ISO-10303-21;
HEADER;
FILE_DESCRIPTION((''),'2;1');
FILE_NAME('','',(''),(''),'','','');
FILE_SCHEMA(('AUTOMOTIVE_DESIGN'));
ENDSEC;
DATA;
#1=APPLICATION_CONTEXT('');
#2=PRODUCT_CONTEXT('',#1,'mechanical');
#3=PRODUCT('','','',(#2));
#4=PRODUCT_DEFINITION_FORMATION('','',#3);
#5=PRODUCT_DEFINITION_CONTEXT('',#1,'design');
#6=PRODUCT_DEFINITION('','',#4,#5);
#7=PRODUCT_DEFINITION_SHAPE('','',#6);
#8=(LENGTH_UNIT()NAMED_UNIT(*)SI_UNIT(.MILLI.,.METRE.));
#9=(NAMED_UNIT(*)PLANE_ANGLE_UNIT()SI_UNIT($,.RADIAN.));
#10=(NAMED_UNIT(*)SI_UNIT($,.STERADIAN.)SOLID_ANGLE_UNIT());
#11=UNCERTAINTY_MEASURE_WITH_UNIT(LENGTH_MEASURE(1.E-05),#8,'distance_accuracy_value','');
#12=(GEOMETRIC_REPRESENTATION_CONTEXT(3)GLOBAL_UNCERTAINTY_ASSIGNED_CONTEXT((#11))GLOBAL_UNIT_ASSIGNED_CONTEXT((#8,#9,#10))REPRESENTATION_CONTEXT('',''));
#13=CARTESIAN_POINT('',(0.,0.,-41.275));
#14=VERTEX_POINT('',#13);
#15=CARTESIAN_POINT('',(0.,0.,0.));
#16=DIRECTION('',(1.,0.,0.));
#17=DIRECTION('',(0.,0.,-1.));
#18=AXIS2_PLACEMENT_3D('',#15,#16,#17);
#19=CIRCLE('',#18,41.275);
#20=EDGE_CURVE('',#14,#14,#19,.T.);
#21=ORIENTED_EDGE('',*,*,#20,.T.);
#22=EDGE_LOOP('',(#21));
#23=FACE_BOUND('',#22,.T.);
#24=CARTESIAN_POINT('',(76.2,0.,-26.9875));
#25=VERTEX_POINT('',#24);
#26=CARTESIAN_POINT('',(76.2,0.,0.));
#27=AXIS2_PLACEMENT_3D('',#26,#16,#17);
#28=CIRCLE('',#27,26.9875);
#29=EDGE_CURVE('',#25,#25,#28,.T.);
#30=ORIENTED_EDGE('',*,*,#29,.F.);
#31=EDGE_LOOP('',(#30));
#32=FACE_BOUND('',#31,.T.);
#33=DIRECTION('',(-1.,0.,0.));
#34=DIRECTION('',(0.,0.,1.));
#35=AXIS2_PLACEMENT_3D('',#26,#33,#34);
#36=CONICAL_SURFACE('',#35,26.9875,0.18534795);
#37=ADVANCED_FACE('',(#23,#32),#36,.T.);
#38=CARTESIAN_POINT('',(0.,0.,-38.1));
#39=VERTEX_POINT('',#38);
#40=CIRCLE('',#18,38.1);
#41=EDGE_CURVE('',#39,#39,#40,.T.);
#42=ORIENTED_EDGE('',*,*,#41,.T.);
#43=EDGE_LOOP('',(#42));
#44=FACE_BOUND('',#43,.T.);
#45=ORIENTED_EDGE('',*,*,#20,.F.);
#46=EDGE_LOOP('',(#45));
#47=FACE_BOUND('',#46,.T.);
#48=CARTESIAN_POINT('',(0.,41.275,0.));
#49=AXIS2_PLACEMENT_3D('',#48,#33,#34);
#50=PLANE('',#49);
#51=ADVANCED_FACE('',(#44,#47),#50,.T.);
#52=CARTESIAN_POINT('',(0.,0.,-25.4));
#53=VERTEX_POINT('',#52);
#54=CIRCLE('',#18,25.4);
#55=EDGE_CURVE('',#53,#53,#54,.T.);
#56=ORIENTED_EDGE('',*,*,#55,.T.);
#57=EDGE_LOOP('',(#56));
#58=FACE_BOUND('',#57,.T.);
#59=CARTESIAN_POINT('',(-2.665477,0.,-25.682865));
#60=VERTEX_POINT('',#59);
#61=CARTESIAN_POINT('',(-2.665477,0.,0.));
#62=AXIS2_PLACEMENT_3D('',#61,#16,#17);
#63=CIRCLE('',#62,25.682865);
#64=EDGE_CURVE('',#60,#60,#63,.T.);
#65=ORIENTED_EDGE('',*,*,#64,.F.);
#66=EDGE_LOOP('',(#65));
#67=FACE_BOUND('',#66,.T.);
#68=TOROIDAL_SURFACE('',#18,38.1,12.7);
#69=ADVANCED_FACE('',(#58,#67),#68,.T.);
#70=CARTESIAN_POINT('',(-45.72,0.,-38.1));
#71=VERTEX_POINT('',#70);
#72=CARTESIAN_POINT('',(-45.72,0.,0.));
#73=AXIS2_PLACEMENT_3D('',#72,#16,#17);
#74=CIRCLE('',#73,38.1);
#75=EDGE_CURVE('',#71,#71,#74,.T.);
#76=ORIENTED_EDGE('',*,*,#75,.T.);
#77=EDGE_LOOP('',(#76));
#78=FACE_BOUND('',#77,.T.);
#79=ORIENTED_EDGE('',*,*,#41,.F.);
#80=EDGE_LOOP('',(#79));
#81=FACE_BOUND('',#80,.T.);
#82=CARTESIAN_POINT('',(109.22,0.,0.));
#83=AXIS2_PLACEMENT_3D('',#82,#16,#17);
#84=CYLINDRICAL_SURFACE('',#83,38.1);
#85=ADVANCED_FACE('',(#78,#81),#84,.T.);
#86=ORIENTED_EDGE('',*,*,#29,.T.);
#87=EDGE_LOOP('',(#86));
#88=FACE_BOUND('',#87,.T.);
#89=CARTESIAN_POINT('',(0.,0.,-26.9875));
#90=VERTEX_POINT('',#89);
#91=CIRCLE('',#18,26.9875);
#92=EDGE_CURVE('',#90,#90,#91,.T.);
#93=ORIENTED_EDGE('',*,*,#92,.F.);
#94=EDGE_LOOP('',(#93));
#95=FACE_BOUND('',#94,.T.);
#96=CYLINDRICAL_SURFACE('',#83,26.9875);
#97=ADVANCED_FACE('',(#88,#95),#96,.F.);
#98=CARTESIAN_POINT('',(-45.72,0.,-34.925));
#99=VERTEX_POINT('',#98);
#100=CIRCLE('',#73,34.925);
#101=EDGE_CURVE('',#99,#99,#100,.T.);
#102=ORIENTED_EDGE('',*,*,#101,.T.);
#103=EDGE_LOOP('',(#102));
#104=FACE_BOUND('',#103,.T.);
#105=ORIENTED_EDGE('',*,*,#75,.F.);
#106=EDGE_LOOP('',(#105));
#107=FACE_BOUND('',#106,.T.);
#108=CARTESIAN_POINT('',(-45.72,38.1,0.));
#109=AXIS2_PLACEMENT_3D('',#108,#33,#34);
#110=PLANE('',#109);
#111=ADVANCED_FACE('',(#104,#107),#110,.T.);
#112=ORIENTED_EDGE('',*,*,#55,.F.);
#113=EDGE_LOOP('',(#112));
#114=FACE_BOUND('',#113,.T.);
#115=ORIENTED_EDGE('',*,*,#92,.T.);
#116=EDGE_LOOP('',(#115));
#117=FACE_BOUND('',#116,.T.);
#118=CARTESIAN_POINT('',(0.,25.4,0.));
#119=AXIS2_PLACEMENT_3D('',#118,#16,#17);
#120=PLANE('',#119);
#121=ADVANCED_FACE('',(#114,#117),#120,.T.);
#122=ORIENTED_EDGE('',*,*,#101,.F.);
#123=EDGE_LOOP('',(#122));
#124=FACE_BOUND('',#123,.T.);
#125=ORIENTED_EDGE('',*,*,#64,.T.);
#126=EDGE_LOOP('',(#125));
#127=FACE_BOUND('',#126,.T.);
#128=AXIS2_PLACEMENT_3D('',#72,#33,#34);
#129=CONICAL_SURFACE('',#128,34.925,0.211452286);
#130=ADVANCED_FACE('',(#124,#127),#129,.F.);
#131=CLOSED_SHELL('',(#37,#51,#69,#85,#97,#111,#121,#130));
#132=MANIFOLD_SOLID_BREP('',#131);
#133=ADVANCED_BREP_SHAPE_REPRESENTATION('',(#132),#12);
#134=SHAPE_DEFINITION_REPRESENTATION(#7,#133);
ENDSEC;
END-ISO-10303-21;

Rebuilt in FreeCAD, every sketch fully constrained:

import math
import FreeCAD as App
import Part
import Sketcher

V = App.Vector
Q = App.Units.Quantity

doc = App.newDocument("Part")
body = doc.addObject("PartDesign::Body", "Body")

# Sketch on XY plane
sketch1 = body.newObject("Sketcher::SketchObject", "Sketch")
sketch1.AttachmentSupport = (doc.getObject("XY_Plane"), [""])
sketch1.MapMode = "FlatFace"
sketch1.addGeometry([
    Part.LineSegment(V(0, 27, 0), V(76.2, 27, 0)),  # 0
    Part.LineSegment(V(76.2, 27, 0), V(0, 41.3, 0)),  # 1
    Part.LineSegment(V(0, 41.3, 0), V(0, 38.1, 0)),  # 2
    Part.LineSegment(V(0, 38.1, 0), V(-45.7, 38.1, 0)),  # 3
    Part.LineSegment(V(-45.7, 38.1, 0), V(-45.7, 34.9, 0)),  # 4
    Part.LineSegment(V(-45.7, 34.9, 0), V(-2.7, 25.7, 0)),  # 5
    Part.ArcOfCircle(Part.Circle(V(0, 38.1, 0), V(0, 0, 1), 12.7), math.radians(-102.12), math.radians(-90)),  # 6
    Part.LineSegment(V(0, 25.4, 0), V(0, 27, 0)),  # 7
], False)
sketch1.addConstraint([
    Sketcher.Constraint("Coincident", 0, 2, 1, 1),
    Sketcher.Constraint("Coincident", 1, 2, 2, 1),
    Sketcher.Constraint("Coincident", 2, 2, 3, 1),
    Sketcher.Constraint("Coincident", 3, 2, 4, 1),
    Sketcher.Constraint("Coincident", 4, 2, 5, 1),
    Sketcher.Constraint("Tangent", 5, 2, 6, 1),
    Sketcher.Constraint("Coincident", 6, 2, 7, 1),
    Sketcher.Constraint("Coincident", 7, 2, 0, 1),
    Sketcher.Constraint("Horizontal", 0),
    Sketcher.Constraint("Vertical", 2),
    Sketcher.Constraint("Horizontal", 3),
    Sketcher.Constraint("Vertical", 4),
    Sketcher.Constraint("Vertical", 7),
    Sketcher.Constraint("Coincident", 2, 2, 6, 3),
    Sketcher.Constraint("PointOnObject", 6, 3, -2),
    Sketcher.Constraint("PointOnObject", 6, 2, -2),
    Sketcher.Constraint("Equal", 2, 4),
    Sketcher.Constraint("Radius", 6, Q("0.5 in")),
    Sketcher.Constraint("DistanceX", 0, 1, 0, 2, Q("3 in")),
    Sketcher.Constraint("DistanceX", 3, 2, 3, 1, Q("1.8 in")),
    Sketcher.Constraint("DistanceY", -1, 1, 6, 2, Q("1 in")),
    Sketcher.Constraint("DistanceY", 2, 2, 2, 1, Q("0.125 in")),
    Sketcher.Constraint("DistanceY", 7, 1, 7, 2, Q("0.0625 in")),
])
revolution = body.newObject("PartDesign::Revolution", "Revolution")
revolution.Profile = sketch1
revolution.ReferenceAxis = (sketch1, ["H_Axis"])
revolution.Angle = 360

doc.recompute()
